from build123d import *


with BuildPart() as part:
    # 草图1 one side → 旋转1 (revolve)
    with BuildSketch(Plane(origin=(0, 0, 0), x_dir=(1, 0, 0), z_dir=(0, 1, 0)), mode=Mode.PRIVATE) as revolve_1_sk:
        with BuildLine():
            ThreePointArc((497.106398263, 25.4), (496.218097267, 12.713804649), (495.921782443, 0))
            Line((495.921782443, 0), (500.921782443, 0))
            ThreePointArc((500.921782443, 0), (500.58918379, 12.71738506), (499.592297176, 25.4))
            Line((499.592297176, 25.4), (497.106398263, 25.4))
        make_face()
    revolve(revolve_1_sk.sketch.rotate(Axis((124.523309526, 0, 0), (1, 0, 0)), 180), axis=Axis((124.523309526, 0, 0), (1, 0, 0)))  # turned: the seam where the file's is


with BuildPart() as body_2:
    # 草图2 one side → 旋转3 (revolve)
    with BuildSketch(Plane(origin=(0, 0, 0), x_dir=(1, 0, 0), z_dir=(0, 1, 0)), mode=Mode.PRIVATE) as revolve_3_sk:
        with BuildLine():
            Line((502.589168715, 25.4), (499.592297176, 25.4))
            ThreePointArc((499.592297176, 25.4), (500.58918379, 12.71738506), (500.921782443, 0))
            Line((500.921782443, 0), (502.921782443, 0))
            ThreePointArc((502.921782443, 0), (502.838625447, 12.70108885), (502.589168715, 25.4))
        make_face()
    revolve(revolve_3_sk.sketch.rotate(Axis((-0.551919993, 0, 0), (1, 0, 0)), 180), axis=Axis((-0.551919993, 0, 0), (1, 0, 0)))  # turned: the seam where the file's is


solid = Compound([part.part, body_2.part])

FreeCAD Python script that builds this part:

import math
import FreeCAD as App
import Part
import Sketcher

V = App.Vector
Q = App.Units.Quantity

doc = App.newDocument("Part")
body = doc.addObject("PartDesign::Body", "Body")

# Sketch on XZ plane
sketch1 = body.newObject("Sketcher::SketchObject", "Sketch")
sketch1.AttachmentSupport = (doc.getObject("XZ_Plane"), [""])
sketch1.MapMode = "FlatFace"
sketch1.addGeometry([
    Part.ArcOfCircle(Part.Circle(V(768.8, 0, 0), V(0, 0, 1), 272.9), math.radians(180), math.radians(185.34)),
    Part.LineSegment(V(495.9, 0, 0), V(500.9, 0, 0)),
    Part.ArcOfCircle(Part.Circle(V(257.6, 0, 0), V(0, 0, 1), 243.3), math.radians(-5.99), math.radians(0)),
    Part.LineSegment(V(499.6, -25.4, 0), V(497.1, -25.4, 0)),
], False)
sketch1.addConstraint([
    Sketcher.Constraint("Coincident", 0, 1, 1, 1),
    Sketcher.Constraint("Coincident", 1, 2, 2, 2),
    Sketcher.Constraint("Coincident", 2, 1, 3, 1),
    Sketcher.Constraint("Coincident", 3, 2, 0, 2),
    Sketcher.Constraint("Horizontal", 1),
    Sketcher.Constraint("Horizontal", 3),
    Sketcher.Constraint("PointOnObject", 0, 3, -1),
    Sketcher.Constraint("PointOnObject", 2, 3, -1),
    Sketcher.Constraint("PointOnObject", 0, 1, -1),
    Sketcher.Constraint("Radius", 0, Q("272.9 mm")),
    Sketcher.Constraint("Radius", 2, Q("243.3 mm")),
    Sketcher.Constraint("DistanceX", 1, 1, 1, 2, Q("5 mm")),
    Sketcher.Constraint("DistanceY", 2, 1, -1, 1, Q("25.4 mm")),
    Sketcher.Constraint("DistanceX", -1, 1, 3, 2, Q("497.106398 mm")),
])
revolution = body.newObject("PartDesign::Revolution", "Revolution")
revolution.Profile = sketch1
revolution.ReferenceAxis = (sketch1, ["H_Axis"])
revolution.Angle = 360
body2 = doc.addObject("PartDesign::Body", "Body001")

# Sketch on XZ plane
sketch2 = body2.newObject("Sketcher::SketchObject", "Sketch001")
sketch2.AttachmentSupport = (doc.getObject("XZ_Plane001"), [""])
sketch2.MapMode = "FlatFace"
sketch2.addGeometry([
    Part.LineSegment(V(502.6, -25.4, 0), V(499.6, -25.4, 0)),
    Part.ArcOfCircle(Part.Circle(V(257.6, 0, 0), V(0, 0, 1), 243.3), math.radians(-5.99), math.radians(0)),
    Part.LineSegment(V(500.9, 0, 0), V(502.9, 0, 0)),
    Part.ArcOfCircle(Part.Circle(V(-467.1, 0, 0), V(0, 0, 1), 970), math.radians(-1.5), math.radians(0)),
], False)
sketch2.addConstraint([
    Sketcher.Constraint("Coincident", 0, 2, 1, 1),
    Sketcher.Constraint("Coincident", 1, 2, 2, 1),
    Sketcher.Constraint("Coincident", 2, 2, 3, 2),
    Sketcher.Constraint("Coincident", 3, 1, 0, 1),
    Sketcher.Constraint("Horizontal", 0),
    Sketcher.Constraint("Horizontal", 2),
    Sketcher.Constraint("PointOnObject", 1, 3, -1),
    Sketcher.Constraint("PointOnObject", 3, 3, -1),
    Sketcher.Constraint("PointOnObject", 1, 2, -1),
    Sketcher.Constraint("Radius", 1, Q("243.3 mm")),
    Sketcher.Constraint("DistanceX", 2, 1, 2, 2, Q("2 mm")),
    Sketcher.Constraint("DistanceY", 0, 2, -1, 1, Q("25.4 mm")),
    Sketcher.Constraint("Radius", 3, Q("969.999994 mm")),
    Sketcher.Constraint("DistanceX", 3, 3, -1, 1, Q("467.078211 mm")),
])
revolution2 = body2.newObject("PartDesign::Revolution", "Revolution001")
revolution2.Profile = sketch2
revolution2.ReferenceAxis = (sketch2, ["H_Axis"])
revolution2.Angle = 360

doc.recompute()
